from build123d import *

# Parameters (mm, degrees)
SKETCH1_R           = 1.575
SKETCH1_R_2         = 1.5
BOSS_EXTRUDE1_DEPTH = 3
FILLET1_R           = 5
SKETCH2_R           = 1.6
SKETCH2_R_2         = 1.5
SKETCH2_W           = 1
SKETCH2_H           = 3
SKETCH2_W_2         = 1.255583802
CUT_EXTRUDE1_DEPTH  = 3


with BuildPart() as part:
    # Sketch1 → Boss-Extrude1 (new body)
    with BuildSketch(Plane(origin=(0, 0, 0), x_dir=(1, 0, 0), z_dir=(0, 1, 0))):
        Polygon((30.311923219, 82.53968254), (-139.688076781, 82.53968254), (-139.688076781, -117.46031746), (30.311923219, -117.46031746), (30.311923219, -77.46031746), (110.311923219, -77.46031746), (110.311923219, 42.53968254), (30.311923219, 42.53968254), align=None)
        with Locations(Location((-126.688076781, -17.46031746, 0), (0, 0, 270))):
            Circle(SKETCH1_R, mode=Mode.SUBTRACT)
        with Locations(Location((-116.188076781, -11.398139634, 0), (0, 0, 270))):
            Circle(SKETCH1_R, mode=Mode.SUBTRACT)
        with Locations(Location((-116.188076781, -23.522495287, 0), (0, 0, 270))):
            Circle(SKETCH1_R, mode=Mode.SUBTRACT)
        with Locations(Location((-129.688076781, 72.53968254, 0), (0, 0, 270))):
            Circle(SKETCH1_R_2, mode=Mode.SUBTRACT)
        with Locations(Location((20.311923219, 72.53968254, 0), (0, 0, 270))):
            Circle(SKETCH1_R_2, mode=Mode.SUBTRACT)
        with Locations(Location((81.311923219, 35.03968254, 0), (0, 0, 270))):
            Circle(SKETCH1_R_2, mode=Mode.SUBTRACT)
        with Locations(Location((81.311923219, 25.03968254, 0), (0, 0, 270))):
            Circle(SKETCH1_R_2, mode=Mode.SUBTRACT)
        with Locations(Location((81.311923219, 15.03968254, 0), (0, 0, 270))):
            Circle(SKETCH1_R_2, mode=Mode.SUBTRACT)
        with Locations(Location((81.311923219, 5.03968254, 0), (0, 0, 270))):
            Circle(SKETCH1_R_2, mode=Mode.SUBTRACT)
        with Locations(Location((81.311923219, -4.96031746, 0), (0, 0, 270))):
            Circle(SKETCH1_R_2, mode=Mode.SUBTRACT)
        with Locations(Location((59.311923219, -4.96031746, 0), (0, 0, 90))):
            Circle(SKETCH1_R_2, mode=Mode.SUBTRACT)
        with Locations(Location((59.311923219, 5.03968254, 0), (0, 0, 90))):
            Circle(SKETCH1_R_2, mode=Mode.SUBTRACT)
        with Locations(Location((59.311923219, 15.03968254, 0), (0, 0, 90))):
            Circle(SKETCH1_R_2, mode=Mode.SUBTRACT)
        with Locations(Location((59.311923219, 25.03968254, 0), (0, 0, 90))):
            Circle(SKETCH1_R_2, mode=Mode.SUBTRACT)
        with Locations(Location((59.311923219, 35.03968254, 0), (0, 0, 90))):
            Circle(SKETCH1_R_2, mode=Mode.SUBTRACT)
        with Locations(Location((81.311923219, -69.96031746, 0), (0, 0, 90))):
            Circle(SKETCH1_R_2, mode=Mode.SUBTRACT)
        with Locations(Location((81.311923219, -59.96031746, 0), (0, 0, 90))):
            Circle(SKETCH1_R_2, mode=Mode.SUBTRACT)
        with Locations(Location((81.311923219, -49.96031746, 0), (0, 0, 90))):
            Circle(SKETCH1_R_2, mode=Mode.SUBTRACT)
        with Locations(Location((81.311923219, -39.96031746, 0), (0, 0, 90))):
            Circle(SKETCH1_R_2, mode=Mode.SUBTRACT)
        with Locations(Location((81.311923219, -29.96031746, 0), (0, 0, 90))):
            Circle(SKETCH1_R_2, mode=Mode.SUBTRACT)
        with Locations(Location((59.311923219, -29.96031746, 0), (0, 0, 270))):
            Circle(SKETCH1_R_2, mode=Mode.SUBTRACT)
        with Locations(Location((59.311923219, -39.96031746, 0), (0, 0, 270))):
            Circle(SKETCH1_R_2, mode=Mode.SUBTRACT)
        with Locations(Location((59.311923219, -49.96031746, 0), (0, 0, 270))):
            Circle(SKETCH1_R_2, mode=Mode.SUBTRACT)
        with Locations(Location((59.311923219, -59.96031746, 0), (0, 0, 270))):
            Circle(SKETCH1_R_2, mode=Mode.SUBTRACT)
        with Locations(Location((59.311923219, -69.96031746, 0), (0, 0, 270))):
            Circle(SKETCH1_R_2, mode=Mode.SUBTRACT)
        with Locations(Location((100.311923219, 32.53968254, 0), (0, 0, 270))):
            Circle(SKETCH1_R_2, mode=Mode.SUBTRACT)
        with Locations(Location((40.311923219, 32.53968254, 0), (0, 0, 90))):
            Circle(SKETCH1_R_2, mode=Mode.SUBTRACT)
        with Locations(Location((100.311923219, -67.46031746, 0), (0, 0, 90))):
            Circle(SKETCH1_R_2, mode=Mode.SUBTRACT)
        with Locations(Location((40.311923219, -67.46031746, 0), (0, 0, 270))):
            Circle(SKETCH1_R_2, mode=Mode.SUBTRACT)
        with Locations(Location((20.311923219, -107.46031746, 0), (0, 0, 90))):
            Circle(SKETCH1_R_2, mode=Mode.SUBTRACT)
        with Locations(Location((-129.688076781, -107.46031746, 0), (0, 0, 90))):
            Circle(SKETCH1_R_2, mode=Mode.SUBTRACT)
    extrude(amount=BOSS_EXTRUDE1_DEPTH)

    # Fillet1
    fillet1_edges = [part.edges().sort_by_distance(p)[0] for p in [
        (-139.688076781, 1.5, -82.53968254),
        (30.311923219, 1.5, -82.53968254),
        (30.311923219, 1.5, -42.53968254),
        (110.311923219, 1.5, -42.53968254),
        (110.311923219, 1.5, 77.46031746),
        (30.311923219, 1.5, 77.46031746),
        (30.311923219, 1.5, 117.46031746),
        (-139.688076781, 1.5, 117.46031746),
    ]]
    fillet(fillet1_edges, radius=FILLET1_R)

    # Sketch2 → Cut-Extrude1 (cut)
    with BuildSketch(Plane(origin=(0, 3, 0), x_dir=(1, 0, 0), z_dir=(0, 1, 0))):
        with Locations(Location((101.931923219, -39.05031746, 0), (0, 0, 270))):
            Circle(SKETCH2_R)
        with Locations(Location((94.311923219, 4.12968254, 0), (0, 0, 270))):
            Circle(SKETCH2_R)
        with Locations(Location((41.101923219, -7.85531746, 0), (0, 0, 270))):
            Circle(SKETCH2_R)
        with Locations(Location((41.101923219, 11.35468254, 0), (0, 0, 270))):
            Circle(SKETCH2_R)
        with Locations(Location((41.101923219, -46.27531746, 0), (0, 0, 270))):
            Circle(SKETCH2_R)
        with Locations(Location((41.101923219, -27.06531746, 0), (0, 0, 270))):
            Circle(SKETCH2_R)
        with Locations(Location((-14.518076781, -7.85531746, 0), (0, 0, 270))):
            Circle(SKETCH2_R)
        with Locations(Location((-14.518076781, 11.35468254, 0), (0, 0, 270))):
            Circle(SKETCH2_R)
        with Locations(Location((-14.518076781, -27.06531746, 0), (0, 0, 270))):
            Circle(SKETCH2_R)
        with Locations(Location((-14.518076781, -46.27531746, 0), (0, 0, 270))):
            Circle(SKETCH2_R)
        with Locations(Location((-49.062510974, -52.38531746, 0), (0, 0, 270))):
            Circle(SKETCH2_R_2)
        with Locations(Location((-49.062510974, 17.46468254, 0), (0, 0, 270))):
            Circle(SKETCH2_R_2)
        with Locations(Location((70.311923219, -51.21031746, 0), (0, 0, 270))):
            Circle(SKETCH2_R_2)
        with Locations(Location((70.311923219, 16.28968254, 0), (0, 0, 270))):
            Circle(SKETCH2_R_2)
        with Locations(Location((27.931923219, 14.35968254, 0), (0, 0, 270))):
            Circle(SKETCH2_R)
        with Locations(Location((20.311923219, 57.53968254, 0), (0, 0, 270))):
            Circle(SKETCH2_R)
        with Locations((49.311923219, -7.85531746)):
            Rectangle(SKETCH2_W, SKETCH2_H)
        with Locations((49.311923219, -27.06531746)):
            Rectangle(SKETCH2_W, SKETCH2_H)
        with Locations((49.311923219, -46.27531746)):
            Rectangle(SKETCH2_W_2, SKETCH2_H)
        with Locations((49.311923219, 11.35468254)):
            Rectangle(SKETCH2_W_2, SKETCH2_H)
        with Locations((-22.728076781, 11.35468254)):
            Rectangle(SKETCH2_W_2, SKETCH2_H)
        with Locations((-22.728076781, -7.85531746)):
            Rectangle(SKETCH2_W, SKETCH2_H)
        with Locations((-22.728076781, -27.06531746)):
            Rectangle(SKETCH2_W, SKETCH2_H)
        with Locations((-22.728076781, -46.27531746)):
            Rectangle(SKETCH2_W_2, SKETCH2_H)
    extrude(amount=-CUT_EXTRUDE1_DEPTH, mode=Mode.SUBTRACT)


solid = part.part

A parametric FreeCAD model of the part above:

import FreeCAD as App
import Part
import Sketcher
Q = App.Units.Quantity


def edges_at(feature, points):
    """Names of the edges that pass closest to the given points."""
    edges = feature.Shape.Edges
    near = lambda p: min(range(len(edges)), key=lambda i: edges[i].distToShape(Part.Vertex(*p))[0])
    return sorted({f"Edge{near(p) + 1}" for p in points})

doc = App.newDocument("Part")
params = doc.addObject("Spreadsheet::Sheet", "Params")
for row, (alias, value) in enumerate([
    ("sketch1_diameter", "3 mm"),
    ("sketch1_diameter2", "3.15 mm"),
    ("sketch1_width", "170 mm"),
    ("sketch1_width2", "80 mm"),
    ("sketch1_height", "200 mm"),
    ("pad1_length", "3 mm"),
    ("fillet_radius", "5 mm"),
    ("sketch2_diameter", "3 mm"),
    ("sketch2_diameter2", "3.2 mm"),
    ("sketch2_width", "1 mm"),
    ("sketch2_height", "3 mm"),
    ("pocket1_length", "3 mm"),
], start=1):
    params.set(f"A{row}", alias)
    params.set(f"B{row}", "=" + value)
    params.setAlias(f"B{row}", alias)

body = doc.addObject("PartDesign::Body", "Body")

# Sketch on XZ plane
sketch1 = doc.addObject("Sketcher::SketchObject", "Sketch")
body.addObject(sketch1)
sketch1.AttachmentSupport = (doc.XZ_Plane, [""])
sketch1.MapMode = "FlatFace"
sketch1.addGeometry([
    Part.LineSegment(App.Vector(30.311923, -82.539683, 0), App.Vector(-139.688077, -82.539683, 0)),  # 0
    Part.LineSegment(App.Vector(-139.688077, -82.539683, 0), App.Vector(-139.688077, 117.460317, 0)),  # 1
    Part.LineSegment(App.Vector(-139.688077, 117.460317, 0), App.Vector(30.311923, 117.460317, 0)),  # 2
    Part.LineSegment(App.Vector(30.311923, 117.460317, 0), App.Vector(30.311923, 77.460317, 0)),  # 3
    Part.LineSegment(App.Vector(30.311923, 77.460317, 0), App.Vector(110.311923, 77.460317, 0)),  # 4
    Part.LineSegment(App.Vector(110.311923, 77.460317, 0), App.Vector(110.311923, -42.539683, 0)),  # 5
    Part.LineSegment(App.Vector(110.311923, -42.539683, 0), App.Vector(30.311923, -42.539683, 0)),  # 6
    Part.LineSegment(App.Vector(30.311923, -42.539683, 0), App.Vector(30.311923, -82.539683, 0)),  # 7
    Part.Circle(App.Vector(-129.688077, 107.460317, 0), App.Vector(0, 0, 1), 1.5),  # 8
    Part.Circle(App.Vector(-116.188077, 23.522495, 0), App.Vector(0, 0, 1), 1.575),  # 9
    Part.Circle(App.Vector(20.311923, 107.460317, 0), App.Vector(0, 0, 1), 1.5),  # 10
    Part.Circle(App.Vector(40.311923, 67.460317, 0), App.Vector(0, 0, 1), 1.5),  # 11
    Part.Circle(App.Vector(59.311923, 69.960317, 0), App.Vector(0, 0, 1), 1.5),  # 12
    Part.Circle(App.Vector(81.311923, 69.960317, 0), App.Vector(0, 0, 1), 1.5),  # 13
    Part.Circle(App.Vector(100.311923, 67.460317, 0), App.Vector(0, 0, 1), 1.5),  # 14
    Part.Circle(App.Vector(59.311923, 59.960317, 0), App.Vector(0, 0, 1), 1.5),  # 15
    Part.Circle(App.Vector(59.311923, 49.960317, 0), App.Vector(0, 0, 1), 1.5),  # 16
    Part.Circle(App.Vector(81.311923, 59.960317, 0), App.Vector(0, 0, 1), 1.5),  # 17
    Part.Circle(App.Vector(81.311923, 49.960317, 0), App.Vector(0, 0, 1), 1.5),  # 18
    Part.Circle(App.Vector(59.311923, 39.960317, 0), App.Vector(0, 0, 1), 1.5),  # 19
    Part.Circle(App.Vector(59.311923, 29.960317, 0), App.Vector(0, 0, 1), 1.5),  # 20
    Part.Circle(App.Vector(81.311923, 39.960317, 0), App.Vector(0, 0, 1), 1.5),  # 21
    Part.Circle(App.Vector(81.311923, 29.960317, 0), App.Vector(0, 0, 1), 1.5),  # 22
    Part.Circle(App.Vector(-126.688077, 17.460317, 0), App.Vector(0, 0, 1), 1.575),  # 23
    Part.Circle(App.Vector(-116.188077, 11.39814, 0), App.Vector(0, 0, 1), 1.575),  # 24
    Part.Circle(App.Vector(-129.688077, -72.539683, 0), App.Vector(0, 0, 1), 1.5),  # 25
    Part.Circle(App.Vector(59.311923, 4.960317, 0), App.Vector(0, 0, 1), 1.5),  # 26
    Part.Circle(App.Vector(59.311923, -5.039683, 0), App.Vector(0, 0, 1), 1.5),  # 27
    Part.Circle(App.Vector(81.311923, 4.960317, 0), App.Vector(0, 0, 1), 1.5),  # 28
    Part.Circle(App.Vector(81.311923, -5.039683, 0), App.Vector(0, 0, 1), 1.5),  # 29
    Part.Circle(App.Vector(59.311923, -15.039683, 0), App.Vector(0, 0, 1), 1.5),  # 30
    Part.Circle(App.Vector(59.311923, -25.039683, 0), App.Vector(0, 0, 1), 1.5),  # 31
    Part.Circle(App.Vector(81.311923, -15.039683, 0), App.Vector(0, 0, 1), 1.5),  # 32
    Part.Circle(App.Vector(81.311923, -25.039683, 0), App.Vector(0, 0, 1), 1.5),  # 33
    Part.Circle(App.Vector(40.311923, -32.539683, 0), App.Vector(0, 0, 1), 1.5),  # 34
    Part.Circle(App.Vector(20.311923, -72.539683, 0), App.Vector(0, 0, 1), 1.5),  # 35
    Part.Circle(App.Vector(59.311923, -35.039683, 0), App.Vector(0, 0, 1), 1.5),  # 36
    Part.Circle(App.Vector(81.311923, -35.039683, 0), App.Vector(0, 0, 1), 1.5),  # 37
    Part.Circle(App.Vector(100.311923, -32.539683, 0), App.Vector(0, 0, 1), 1.5),  # 38
], False)
sketch1.addConstraint([
    Sketcher.Constraint("Coincident", 0, 2, 1, 1),
    Sketcher.Constraint("Coincident", 1, 2, 2, 1),
    Sketcher.Constraint("Coincident", 2, 2, 3, 1),
    Sketcher.Constraint("Coincident", 3, 2, 4, 1),
    Sketcher.Constraint("Coincident", 4, 2, 5, 1),
    Sketcher.Constraint("Coincident", 5, 2, 6, 1),
    Sketcher.Constraint("Coincident", 6, 2, 7, 1),
    Sketcher.Constraint("Coincident", 7, 2, 0, 1),
    Sketcher.Constraint("Horizontal", 0),
    Sketcher.Constraint("Vertical", 1),
    Sketcher.Constraint("Horizontal", 2),
    Sketcher.Constraint("Vertical", 3),
    Sketcher.Constraint("Horizontal", 4),
    Sketcher.Constraint("Vertical", 5),
    Sketcher.Constraint("Horizontal", 6),
    Sketcher.Constraint("Vertical", 7),
    Sketcher.Constraint("Equal", 8, 10),
    Sketcher.Constraint("Equal", 10, 11),
    Sketcher.Constraint("Equal", 11, 12),
    Sketcher.Constraint("Equal", 12, 13),
    Sketcher.Constraint("Equal", 13, 14),
    Sketcher.Constraint("Equal", 14, 15),
    Sketcher.Constraint("Equal", 15, 16),
    Sketcher.Constraint("Equal", 16, 17),
    Sketcher.Constraint("Equal", 17, 18),
    Sketcher.Constraint("Equal", 18, 19),
    Sketcher.Constraint("Equal", 19, 20),
    Sketcher.Constraint("Equal", 20, 21),
    Sketcher.Constraint("Equal", 21, 22),
    Sketcher.Constraint("Equal", 9, 23),
    Sketcher.Constraint("Equal", 23, 24),
    Sketcher.Constraint("Equal", 22, 25),
    Sketcher.Constraint("Equal", 25, 26),
    Sketcher.Constraint("Equal", 26, 27),
    Sketcher.Constraint("Equal", 27, 28),
    Sketcher.Constraint("Equal", 28, 29),
    Sketcher.Constraint("Equal", 29, 30),
    Sketcher.Constraint("Equal", 30, 31),
    Sketcher.Constraint("Equal", 31, 32),
    Sketcher.Constraint("Equal", 32, 33),
    Sketcher.Constraint("Equal", 33, 34),
    Sketcher.Constraint("Equal", 34, 35),
    Sketcher.Constraint("Equal", 35, 36),
    Sketcher.Constraint("Equal", 36, 37),
    Sketcher.Constraint("Equal", 37, 38),
    Sketcher.Constraint("Horizontal", 8, 3, 10, 3),
    Sketcher.Constraint("Horizontal", 12, 3, 13, 3),
    Sketcher.Constraint("Horizontal", 11, 3, 14, 3),
    Sketcher.Constraint("Horizontal", 15, 3, 17, 3),
    Sketcher.Constraint("Horizontal", 16, 3, 18, 3),
    Sketcher.Constraint("Horizontal", 19, 3, 21, 3),
    Sketcher.Constraint("Horizontal", 20, 3, 22, 3),
    Sketcher.Constraint("Horizontal", 26, 3, 28, 3),
    Sketcher.Constraint("Horizontal", 27, 3, 29, 3),
    Sketcher.Constraint("Horizontal", 30, 3, 32, 3),
    Sketcher.Constraint("Horizontal", 31, 3, 33, 3),
    Sketcher.Constraint("Horizontal", 25, 3, 35, 3),
    Sketcher.Constraint("Horizontal", 36, 3, 37, 3),
    Sketcher.Constraint("Horizontal", 34, 3, 38, 3),
    Sketcher.Constraint("Vertical", 12, 3, 15, 3),
    Sketcher.Constraint("Vertical", 15, 3, 16, 3),
    Sketcher.Constraint("Vertical", 13, 3, 17, 3),
    Sketcher.Constraint("Vertical", 17, 3, 18, 3),
    Sketcher.Constraint("Vertical", 16, 3, 19, 3),
    Sketcher.Constraint("Vertical", 19, 3, 20, 3),
    Sketcher.Constraint("Vertical", 18, 3, 21, 3),
    Sketcher.Constraint("Vertical", 21, 3, 22, 3),
    Sketcher.Constraint("Vertical", 9, 3, 24, 3),
    Sketcher.Constraint("Vertical", 8, 3, 25, 3),
    Sketcher.Constraint("Vertical", 20, 3, 26, 3),
    Sketcher.Constraint("Vertical", 26, 3, 27, 3),
    Sketcher.Constraint("Vertical", 22, 3, 28, 3),
    Sketcher.Constraint("Vertical", 28, 3, 29, 3),
    Sketcher.Constraint("Vertical", 27, 3, 30, 3),
    Sketcher.Constraint("Vertical", 30, 3, 31, 3),
    Sketcher.Constraint("Vertical", 29, 3, 32, 3),
    Sketcher.Constraint("Vertical", 32, 3, 33, 3),
    Sketcher.Constraint("Vertical", 11, 3, 34, 3),
    Sketcher.Constraint("Vertical", 10, 3, 35, 3),
    Sketcher.Constraint("Vertical", 31, 3, 36, 3),
    Sketcher.Constraint("Vertical", 33, 3, 37, 3),
    Sketcher.Constraint("Vertical", 14, 3, 38, 3),
    Sketcher.Constraint("Vertical", 3, 2, 6, 2),
    Sketcher.Constraint("Equal", 3, 7),
    Sketcher.Constraint("Diameter", 8, Q("3 mm")),
    Sketcher.Constraint("Diameter", 9, Q("3.15 mm")),
    Sketcher.Constraint("DistanceX", 0, 2, 0, 1, Q("170 mm")),
    Sketcher.Constraint("DistanceX", 4, 1, 4, 2, Q("80 mm")),
    Sketcher.Constraint("DistanceY", 1, 1, 1, 2, Q("200 mm")),
    Sketcher.Constraint("DistanceY", 3, 2, 3, 1, Q("40 mm")),
    Sketcher.Constraint("DistanceX", 8, 3, 10, 3, Q("150 mm")),
    Sketcher.Constraint("DistanceX", 10, 3, 11, 3, Q("20 mm")),
    Sketcher.Constraint("DistanceY", 11, 3, 10, 3, Q("40 mm")),
    Sketcher.Constraint("DistanceX", 11, 3, 12, 3, Q("19 mm")),
    Sketcher.Constraint("DistanceX", 12, 3, 13, 3, Q("22 mm")),
    Sketcher.Constraint("DistanceX", 13, 3, 14, 3, Q("19 mm")),
    Sketcher.Constraint("DistanceY", 15, 3, 12, 3, Q("10 mm")),
    Sketcher.Constraint("DistanceY", 16, 3, 15, 3, Q("10 mm")),
    Sketcher.Constraint("DistanceY", 19, 3, 16, 3, Q("10 mm")),
    Sketcher.Constraint("DistanceY", 20, 3, 19, 3, Q("10 mm")),
    Sketcher.Constraint("DistanceX", 8, 3, 23, 3, Q("3 mm")),
    Sketcher.Constraint("DistanceY", 23, 3, 8, 3, Q("90 mm")),
    Sketcher.Constraint("DistanceY", 25, 3, 23, 3, Q("90 mm")),
    Sketcher.Constraint("DistanceY", 26, 3, 20, 3, Q("25 mm")),
    Sketcher.Constraint("DistanceY", 27, 3, 26, 3, Q("10 mm")),
    Sketcher.Constraint("DistanceY", 30, 3, 27, 3, Q("10 mm")),
    Sketcher.Constraint("DistanceY", 31, 3, 30, 3, Q("10 mm")),
    Sketcher.Constraint("DistanceY", 35, 3, 34, 3, Q("40 mm")),
    Sketcher.Constraint("DistanceY", 36, 3, 31, 3, Q("10 mm")),
    Sketcher.Constraint("DistanceX", 0, 2, 25, 3, Q("10 mm")),
    Sketcher.Constraint("DistanceY", 0, 2, 25, 3, Q("10 mm")),
    Sketcher.Constraint("DistanceX", 8, 3, 9, 3, Q("13.5 mm")),
    Sketcher.Constraint("DistanceY", 11, 3, 12, 3, Q("2.5 mm")),
    Sketcher.Constraint("DistanceY", -1, 1, 24, 3, Q("11.39814 mm")),
    Sketcher.Constraint("DistanceX", 8, 3, -1, 1, Q("129.688077 mm")),
    Sketcher.Constraint("DistanceY", -1, 1, 8, 3, Q("107.460317 mm")),
    Sketcher.Constraint("DistanceY", -1, 1, 9, 3, Q("23.522495 mm")),
])
sketch1.setExpression("Constraints[84]", "Params.sketch1_diameter")
sketch1.setExpression("Constraints[85]", "Params.sketch1_diameter2")
sketch1.setExpression("Constraints[86]", "Params.sketch1_width")
sketch1.setExpression("Constraints[87]", "Params.sketch1_width2")
sketch1.setExpression("Constraints[88]", "Params.sketch1_height")
pad1 = doc.addObject("PartDesign::Pad", "Pad")
body.addObject(pad1)
pad1.Profile = sketch1
pad1.setExpression("Length", "Params.pad1_length")
pad1.Reversed = True
doc.recompute()

fillet = doc.addObject("PartDesign::Fillet", "Fillet")
body.addObject(fillet)
fillet.Base = (pad1, edges_at(pad1, [
    (-139.688, 1.5, -82.54),
    (30.312, 1.5, -82.54),
    (30.312, 1.5, -42.54),
    (110.312, 1.5, -42.54),
    (110.312, 1.5, 77.46),
    (30.312, 1.5, 77.46),
    (30.312, 1.5, 117.46),
    (-139.688, 1.5, 117.46),
]))
fillet.setExpression("Radius", "Params.fillet_radius")

# Sketch on XZ plane
sketch2 = doc.addObject("Sketcher::SketchObject", "Sketch001")
body.addObject(sketch2)
sketch2.AttachmentSupport = (doc.XZ_Plane, [""])
sketch2.MapMode = "FlatFace"
sketch2.AttachmentOffset = App.Placement(App.Vector(0, 0, -3), App.Rotation())
sketch2.addGeometry([
    Part.Circle(App.Vector(101.931923, 39.050317, 0), App.Vector(0, 0, 1), 1.6),  # 0
    Part.Circle(App.Vector(94.311923, -4.129683, 0), App.Vector(0, 0, 1), 1.6),  # 1
    Part.Circle(App.Vector(41.101923, 7.855317, 0), App.Vector(0, 0, 1), 1.6),  # 2
    Part.Circle(App.Vector(41.101923, -11.354683, 0), App.Vector(0, 0, 1), 1.6),  # 3
    Part.Circle(App.Vector(41.101923, 46.275317, 0), App.Vector(0, 0, 1), 1.6),  # 4
    Part.Circle(App.Vector(41.101923, 27.065317, 0), App.Vector(0, 0, 1), 1.6),  # 5
    Part.Circle(App.Vector(-14.518077, 7.855317, 0), App.Vector(0, 0, 1), 1.6),  # 6
    Part.Circle(App.Vector(-14.518077, -11.354683, 0), App.Vector(0, 0, 1), 1.6),  # 7
    Part.Circle(App.Vector(-14.518077, 27.065317, 0), App.Vector(0, 0, 1), 1.6),  # 8
    Part.Circle(App.Vector(-14.518077, 46.275317, 0), App.Vector(0, 0, 1), 1.6),  # 9
    Part.Circle(App.Vector(-49.062511, 52.385317, 0), App.Vector(0, 0, 1), 1.5),  # 10
    Part.Circle(App.Vector(-49.062511, -17.464683, 0), App.Vector(0, 0, 1), 1.5),  # 11
    Part.Circle(App.Vector(70.311923, 51.210317, 0), App.Vector(0, 0, 1), 1.5),  # 12
    Part.Circle(App.Vector(70.311923, -16.289683, 0), App.Vector(0, 0, 1), 1.5),  # 13
    Part.Circle(App.Vector(27.931923, -14.359683, 0), App.Vector(0, 0, 1), 1.6),  # 14
    Part.Circle(App.Vector(20.311923, -57.539683, 0), App.Vector(0, 0, 1), 1.6),  # 15
    Part.LineSegment(App.Vector(48.811923, 6.355317, 0), App.Vector(48.811923, 9.355317, 0)),  # 16
    Part.LineSegment(App.Vector(48.811923, 9.355317, 0), App.Vector(49.811923, 9.355317, 0)),  # 17
    Part.LineSegment(App.Vector(49.811923, 9.355317, 0), App.Vector(49.811923, 6.355317, 0)),  # 18
    Part.LineSegment(App.Vector(49.811923, 6.355317, 0), App.Vector(48.811923, 6.355317, 0)),  # 19
    Part.LineSegment(App.Vector(48.811923, 25.565317, 0), App.Vector(48.811923, 28.565317, 0)),  # 20
    Part.LineSegment(App.Vector(48.811923, 28.565317, 0), App.Vector(49.811923, 28.565317, 0)),  # 21
    Part.LineSegment(App.Vector(49.811923, 28.565317, 0), App.Vector(49.811923, 25.565317, 0)),  # 22
    Part.LineSegment(App.Vector(49.811923, 25.565317, 0), App.Vector(48.811923, 25.565317, 0)),  # 23
    Part.LineSegment(App.Vector(48.684131, 44.775317, 0), App.Vector(48.684131, 47.775317, 0)),  # 24
    Part.LineSegment(App.Vector(48.684131, 47.775317, 0), App.Vector(49.939715, 47.775317, 0)),  # 25
    Part.LineSegment(App.Vector(49.939715, 47.775317, 0), App.Vector(49.939715, 44.775317, 0)),  # 26
    Part.LineSegment(App.Vector(49.939715, 44.775317, 0), App.Vector(48.684131, 44.775317, 0)),  # 27
    Part.LineSegment(App.Vector(48.684131, -12.854683, 0), App.Vector(48.684131, -9.854683, 0)),  # 28
    Part.LineSegment(App.Vector(48.684131, -9.854683, 0), App.Vector(49.939715, -9.854683, 0)),  # 29
    Part.LineSegment(App.Vector(49.939715, -9.854683, 0), App.Vector(49.939715, -12.854683, 0)),  # 30
    Part.LineSegment(App.Vector(49.939715, -12.854683, 0), App.Vector(48.684131, -12.854683, 0)),  # 31
    Part.LineSegment(App.Vector(-23.355869, -12.854683, 0), App.Vector(-23.355869, -9.854683, 0)),  # 32
    Part.LineSegment(App.Vector(-23.355869, -9.854683, 0), App.Vector(-22.100285, -9.854683, 0)),  # 33
    Part.LineSegment(App.Vector(-22.100285, -9.854683, 0), App.Vector(-22.100285, -12.854683, 0)),  # 34
    Part.LineSegment(App.Vector(-22.100285, -12.854683, 0), App.Vector(-23.355869, -12.854683, 0)),  # 35
    Part.LineSegment(App.Vector(-23.228077, 6.355317, 0), App.Vector(-23.228077, 9.355317, 0)),  # 36
    Part.LineSegment(App.Vector(-23.228077, 9.355317, 0), App.Vector(-22.228077, 9.355317, 0)),  # 37
    Part.LineSegment(App.Vector(-22.228077, 9.355317, 0), App.Vector(-22.228077, 6.355317, 0)),  # 38
    Part.LineSegment(App.Vector(-22.228077, 6.355317, 0), App.Vector(-23.228077, 6.355317, 0)),  # 39
    Part.LineSegment(App.Vector(-23.228077, 25.565317, 0), App.Vector(-23.228077, 28.565317, 0)),  # 40
    Part.LineSegment(App.Vector(-23.228077, 28.565317, 0), App.Vector(-22.228077, 28.565317, 0)),  # 41
    Part.LineSegment(App.Vector(-22.228077, 28.565317, 0), App.Vector(-22.228077, 25.565317, 0)),  # 42
    Part.LineSegment(App.Vector(-22.228077, 25.565317, 0), App.Vector(-23.228077, 25.565317, 0)),  # 43
    Part.LineSegment(App.Vector(-23.355869, 44.775317, 0), App.Vector(-23.355869, 47.775317, 0)),  # 44
    Part.LineSegment(App.Vector(-23.355869, 47.775317, 0), App.Vector(-22.100285, 47.775317, 0)),  # 45
    Part.LineSegment(App.Vector(-22.100285, 47.775317, 0), App.Vector(-22.100285, 44.775317, 0)),  # 46
    Part.LineSegment(App.Vector(-22.100285, 44.775317, 0), App.Vector(-23.355869, 44.775317, 0)),  # 47
], False)
sketch2.addConstraint([
    Sketcher.Constraint("Coincident", 16, 2, 17, 1),
    Sketcher.Constraint("Coincident", 17, 2, 18, 1),
    Sketcher.Constraint("Coincident", 18, 2, 19, 1),
    Sketcher.Constraint("Coincident", 19, 2, 16, 1),
    Sketcher.Constraint("Coincident", 20, 2, 21, 1),
    Sketcher.Constraint("Coincident", 21, 2, 22, 1),
    Sketcher.Constraint("Coincident", 22, 2, 23, 1),
    Sketcher.Constraint("Coincident", 23, 2, 20, 1),
    Sketcher.Constraint("Coincident", 24, 2, 25, 1),
    Sketcher.Constraint("Coincident", 25, 2, 26, 1),
    Sketcher.Constraint("Coincident", 26, 2, 27, 1),
    Sketcher.Constraint("Coincident", 27, 2, 24, 1),
    Sketcher.Constraint("Coincident", 28, 2, 29, 1),
    Sketcher.Constraint("Coincident", 29, 2, 30, 1),
    Sketcher.Constraint("Coincident", 30, 2, 31, 1),
    Sketcher.Constraint("Coincident", 31, 2, 28, 1),
    Sketcher.Constraint("Coincident", 32, 2, 33, 1),
    Sketcher.Constraint("Coincident", 33, 2, 34, 1),
    Sketcher.Constraint("Coincident", 34, 2, 35, 1),
    Sketcher.Constraint("Coincident", 35, 2, 32, 1),
    Sketcher.Constraint("Coincident", 36, 2, 37, 1),
    Sketcher.Constraint("Coincident", 37, 2, 38, 1),
    Sketcher.Constraint("Coincident", 38, 2, 39, 1),
    Sketcher.Constraint("Coincident", 39, 2, 36, 1),
    Sketcher.Constraint("Coincident", 40, 2, 41, 1),
    Sketcher.Constraint("Coincident", 41, 2, 42, 1),
    Sketcher.Constraint("Coincident", 42, 2, 43, 1),
    Sketcher.Constraint("Coincident", 43, 2, 40, 1),
    Sketcher.Constraint("Coincident", 44, 2, 45, 1),
    Sketcher.Constraint("Coincident", 45, 2, 46, 1),
    Sketcher.Constraint("Coincident", 46, 2, 47, 1),
    Sketcher.Constraint("Coincident", 47, 2, 44, 1),
    Sketcher.Constraint("Vertical", 16),
    Sketcher.Constraint("Horizontal", 17),
    Sketcher.Constraint("Vertical", 18),
    Sketcher.Constraint("Horizontal", 19),
    Sketcher.Constraint("Vertical", 20),
    Sketcher.Constraint("Horizontal", 21),
    Sketcher.Constraint("Vertical", 22),
    Sketcher.Constraint("Horizontal", 23),
    Sketcher.Constraint("Vertical", 24),
    Sketcher.Constraint("Horizontal", 25),
    Sketcher.Constraint("Vertical", 26),
    Sketcher.Constraint("Horizontal", 27),
    Sketcher.Constraint("Vertical", 28),
    Sketcher.Constraint("Horizontal", 29),
    Sketcher.Constraint("Vertical", 30),
    Sketcher.Constraint("Horizontal", 31),
    Sketcher.Constraint("Vertical", 32),
    Sketcher.Constraint("Horizontal", 33),
    Sketcher.Constraint("Vertical", 34),
    Sketcher.Constraint("Horizontal", 35),
    Sketcher.Constraint("Vertical", 36),
    Sketcher.Constraint("Horizontal", 37),
    Sketcher.Constraint("Vertical", 38),
    Sketcher.Constraint("Horizontal", 39),
    Sketcher.Constraint("Vertical", 40),
    Sketcher.Constraint("Horizontal", 41),
    Sketcher.Constraint("Vertical", 42),
    Sketcher.Constraint("Horizontal", 43),
    Sketcher.Constraint("Vertical", 44),
    Sketcher.Constraint("Horizontal", 45),
    Sketcher.Constraint("Vertical", 46),
    Sketcher.Constraint("Horizontal", 47),
    Sketcher.Constraint("Equal", 0, 1),
    Sketcher.Constraint("Equal", 1, 2),
    Sketcher.Constraint("Equal", 2, 3),
    Sketcher.Constraint("Equal", 3, 4),
    Sketcher.Constraint("Equal", 4, 5),
    Sketcher.Constraint("Equal", 5, 6),
    Sketcher.Constraint("Equal", 6, 7),
    Sketcher.Constraint("Equal", 7, 8),
    Sketcher.Constraint("Equal", 8, 9),
    Sketcher.Constraint("Equal", 10, 11),
    Sketcher.Constraint("Equal", 11, 12),
    Sketcher.Constraint("Equal", 12, 13),
    Sketcher.Constraint("Equal", 9, 14),
    Sketcher.Constraint("Equal", 14, 15),
    Sketcher.Constraint("Horizontal", 2, 3, 6, 3),
    Sketcher.Constraint("Horizontal", 3, 3, 7, 3),
    Sketcher.Constraint("Horizontal", 5, 3, 8, 3),
    Sketcher.Constraint("Horizontal", 4, 3, 9, 3),
    Sketcher.Constraint("Horizontal", 29, 2, 32, 2),
    Sketcher.Constraint("Horizontal", 31, 2, 34, 2),
    Sketcher.Constraint("Horizontal", 17, 2, 36, 2),
    Sketcher.Constraint("Horizontal", 19, 2, 38, 2),
    Sketcher.Constraint("Horizontal", 21, 2, 40, 2),
    Sketcher.Constraint("Horizontal", 23, 2, 42, 2),
    Sketcher.Constraint("Horizontal", 25, 2, 44, 2),
    Sketcher.Constraint("Horizontal", 27, 2, 46, 2),
    Sketcher.Constraint("Vertical", 2, 3, 3, 3),
    Sketcher.Constraint("Vertical", 3, 3, 4, 3),
    Sketcher.Constraint("Vertical", 4, 3, 5, 3),
    Sketcher.Constraint("Vertical", 6, 3, 7, 3),
    Sketcher.Constraint("Vertical", 7, 3, 8, 3),
    Sketcher.Constraint("Vertical", 8, 3, 9, 3),
    Sketcher.Constraint("Vertical", 10, 3, 11, 3),
    Sketcher.Constraint("Vertical", 12, 3, 13, 3),
    Sketcher.Constraint("Vertical", 19, 2, 20, 2),
    Sketcher.Constraint("Vertical", 18, 2, 21, 2),
    Sketcher.Constraint("Vertical", 27, 2, 28, 2),
    Sketcher.Constraint("Vertical", 26, 2, 29, 2),
    Sketcher.Constraint("Vertical", 39, 2, 40, 2),
    Sketcher.Constraint("Vertical", 38, 2, 41, 2),
    Sketcher.Constraint("Vertical", 35, 2, 44, 2),
    Sketcher.Constraint("Vertical", 34, 2, 45, 2),
    Sketcher.Constraint("Equal", 31, 33),
    Sketcher.Constraint("Equal", 23, 37),
    Sketcher.Constraint("Equal", 18, 20),
    Sketcher.Constraint("Equal", 22, 24),
    Sketcher.Constraint("Equal", 26, 28),
    Sketcher.Constraint("Diameter", 10, Q("3 mm")),
    Sketcher.Constraint("Diameter", 0, Q("3.2 mm")),
    Sketcher.Constraint("DistanceX", 17, 1, 17, 2, Q("1 mm")),
    Sketcher.Constraint("DistanceY", 16, 1, 16, 2, Q("3 mm")),
    Sketcher.Constraint("DistanceX", 12, 3, 1, 3, Q("24 mm")),
    Sketcher.Constraint("DistanceX", 15, 3, 13, 3, Q("50 mm")),
    Sketcher.Constraint("DistanceY", 2, 3, 16, 2, Q("1.5 mm")),
    Sketcher.Constraint("DistanceX", 16, 2, 13, 3, Q("21.5 mm")),
    Sketcher.Constraint("DistanceY", 5, 3, 20, 2, Q("1.5 mm")),
    Sketcher.Constraint("DistanceY", 4, 3, 24, 2, Q("1.5 mm")),
    Sketcher.Constraint("DistanceY", 3, 3, 28, 2, Q("1.5 mm")),
    Sketcher.Constraint("DistanceX", 1, 3, 0, 3, Q("7.62 mm")),
    Sketcher.Constraint("DistanceY", 1, 3, 0, 3, Q("43.18 mm")),
    Sketcher.Constraint("DistanceX", 2, 3, 1, 3, Q("53.21 mm")),
    Sketcher.Constraint("DistanceY", 3, 3, 2, 3, Q("19.21 mm")),
    Sketcher.Constraint("DistanceY", 2, 3, 4, 3, Q("38.42 mm")),
    Sketcher.Constraint("DistanceY", 5, 3, 4, 3, Q("19.21 mm")),
    Sketcher.Constraint("DistanceX", 6, 3, 2, 3, Q("55.62 mm")),
    Sketcher.Constraint("DistanceY", 9, 3, 10, 3, Q("6.11 mm")),
    Sketcher.Constraint("DistanceY", 11, 3, 7, 3, Q("6.11 mm")),
    Sketcher.Constraint("DistanceY", 0, 3, 12, 3, Q("12.16 mm")),
    Sketcher.Constraint("DistanceY", 13, 3, 1, 3, Q("12.16 mm")),
    Sketcher.Constraint("DistanceX", 14, 3, 3, 3, Q("13.17 mm")),
    Sketcher.Constraint("DistanceY", 13, 3, 14, 3, Q("1.93 mm")),
    Sketcher.Constraint("DistanceY", 15, 3, 14, 3, Q("43.18 mm")),
    Sketcher.Constraint("DistanceX", 36, 2, 6, 3, Q("8.71 mm")),
    Sketcher.Constraint("DistanceY", 1, 3, 2, 3, Q("11.985 mm")),
    Sketcher.Constraint("DistanceX", 25, 1, 25, 2, Q("1.255584 mm")),
    Sketcher.Constraint("DistanceX", 10, 3, -1, 1, Q("49.062511 mm")),
    Sketcher.Constraint("DistanceX", -1, 1, 24, 2, Q("48.684131 mm")),
    Sketcher.Constraint("DistanceX", 32, 2, -1, 1, Q("23.355869 mm")),
    Sketcher.Constraint("DistanceX", 4, 3, 24, 2, Q("7.582208 mm")),
    Sketcher.Constraint("DistanceY", -1, 1, 0, 3, Q("39.050317 mm")),
])
sketch2.setExpression("Constraints[111]", "Params.sketch2_diameter")
sketch2.setExpression("Constraints[112]", "Params.sketch2_diameter2")
sketch2.setExpression("Constraints[113]", "Params.sketch2_width")
sketch2.setExpression("Constraints[114]", "Params.sketch2_height")
pocket1 = doc.addObject("PartDesign::Pocket", "Pocket")
body.addObject(pocket1)
pocket1.Profile = sketch2
pocket1.setExpression("Length", "Params.pocket1_length")
pocket1.Reversed = True

doc.recompute()
